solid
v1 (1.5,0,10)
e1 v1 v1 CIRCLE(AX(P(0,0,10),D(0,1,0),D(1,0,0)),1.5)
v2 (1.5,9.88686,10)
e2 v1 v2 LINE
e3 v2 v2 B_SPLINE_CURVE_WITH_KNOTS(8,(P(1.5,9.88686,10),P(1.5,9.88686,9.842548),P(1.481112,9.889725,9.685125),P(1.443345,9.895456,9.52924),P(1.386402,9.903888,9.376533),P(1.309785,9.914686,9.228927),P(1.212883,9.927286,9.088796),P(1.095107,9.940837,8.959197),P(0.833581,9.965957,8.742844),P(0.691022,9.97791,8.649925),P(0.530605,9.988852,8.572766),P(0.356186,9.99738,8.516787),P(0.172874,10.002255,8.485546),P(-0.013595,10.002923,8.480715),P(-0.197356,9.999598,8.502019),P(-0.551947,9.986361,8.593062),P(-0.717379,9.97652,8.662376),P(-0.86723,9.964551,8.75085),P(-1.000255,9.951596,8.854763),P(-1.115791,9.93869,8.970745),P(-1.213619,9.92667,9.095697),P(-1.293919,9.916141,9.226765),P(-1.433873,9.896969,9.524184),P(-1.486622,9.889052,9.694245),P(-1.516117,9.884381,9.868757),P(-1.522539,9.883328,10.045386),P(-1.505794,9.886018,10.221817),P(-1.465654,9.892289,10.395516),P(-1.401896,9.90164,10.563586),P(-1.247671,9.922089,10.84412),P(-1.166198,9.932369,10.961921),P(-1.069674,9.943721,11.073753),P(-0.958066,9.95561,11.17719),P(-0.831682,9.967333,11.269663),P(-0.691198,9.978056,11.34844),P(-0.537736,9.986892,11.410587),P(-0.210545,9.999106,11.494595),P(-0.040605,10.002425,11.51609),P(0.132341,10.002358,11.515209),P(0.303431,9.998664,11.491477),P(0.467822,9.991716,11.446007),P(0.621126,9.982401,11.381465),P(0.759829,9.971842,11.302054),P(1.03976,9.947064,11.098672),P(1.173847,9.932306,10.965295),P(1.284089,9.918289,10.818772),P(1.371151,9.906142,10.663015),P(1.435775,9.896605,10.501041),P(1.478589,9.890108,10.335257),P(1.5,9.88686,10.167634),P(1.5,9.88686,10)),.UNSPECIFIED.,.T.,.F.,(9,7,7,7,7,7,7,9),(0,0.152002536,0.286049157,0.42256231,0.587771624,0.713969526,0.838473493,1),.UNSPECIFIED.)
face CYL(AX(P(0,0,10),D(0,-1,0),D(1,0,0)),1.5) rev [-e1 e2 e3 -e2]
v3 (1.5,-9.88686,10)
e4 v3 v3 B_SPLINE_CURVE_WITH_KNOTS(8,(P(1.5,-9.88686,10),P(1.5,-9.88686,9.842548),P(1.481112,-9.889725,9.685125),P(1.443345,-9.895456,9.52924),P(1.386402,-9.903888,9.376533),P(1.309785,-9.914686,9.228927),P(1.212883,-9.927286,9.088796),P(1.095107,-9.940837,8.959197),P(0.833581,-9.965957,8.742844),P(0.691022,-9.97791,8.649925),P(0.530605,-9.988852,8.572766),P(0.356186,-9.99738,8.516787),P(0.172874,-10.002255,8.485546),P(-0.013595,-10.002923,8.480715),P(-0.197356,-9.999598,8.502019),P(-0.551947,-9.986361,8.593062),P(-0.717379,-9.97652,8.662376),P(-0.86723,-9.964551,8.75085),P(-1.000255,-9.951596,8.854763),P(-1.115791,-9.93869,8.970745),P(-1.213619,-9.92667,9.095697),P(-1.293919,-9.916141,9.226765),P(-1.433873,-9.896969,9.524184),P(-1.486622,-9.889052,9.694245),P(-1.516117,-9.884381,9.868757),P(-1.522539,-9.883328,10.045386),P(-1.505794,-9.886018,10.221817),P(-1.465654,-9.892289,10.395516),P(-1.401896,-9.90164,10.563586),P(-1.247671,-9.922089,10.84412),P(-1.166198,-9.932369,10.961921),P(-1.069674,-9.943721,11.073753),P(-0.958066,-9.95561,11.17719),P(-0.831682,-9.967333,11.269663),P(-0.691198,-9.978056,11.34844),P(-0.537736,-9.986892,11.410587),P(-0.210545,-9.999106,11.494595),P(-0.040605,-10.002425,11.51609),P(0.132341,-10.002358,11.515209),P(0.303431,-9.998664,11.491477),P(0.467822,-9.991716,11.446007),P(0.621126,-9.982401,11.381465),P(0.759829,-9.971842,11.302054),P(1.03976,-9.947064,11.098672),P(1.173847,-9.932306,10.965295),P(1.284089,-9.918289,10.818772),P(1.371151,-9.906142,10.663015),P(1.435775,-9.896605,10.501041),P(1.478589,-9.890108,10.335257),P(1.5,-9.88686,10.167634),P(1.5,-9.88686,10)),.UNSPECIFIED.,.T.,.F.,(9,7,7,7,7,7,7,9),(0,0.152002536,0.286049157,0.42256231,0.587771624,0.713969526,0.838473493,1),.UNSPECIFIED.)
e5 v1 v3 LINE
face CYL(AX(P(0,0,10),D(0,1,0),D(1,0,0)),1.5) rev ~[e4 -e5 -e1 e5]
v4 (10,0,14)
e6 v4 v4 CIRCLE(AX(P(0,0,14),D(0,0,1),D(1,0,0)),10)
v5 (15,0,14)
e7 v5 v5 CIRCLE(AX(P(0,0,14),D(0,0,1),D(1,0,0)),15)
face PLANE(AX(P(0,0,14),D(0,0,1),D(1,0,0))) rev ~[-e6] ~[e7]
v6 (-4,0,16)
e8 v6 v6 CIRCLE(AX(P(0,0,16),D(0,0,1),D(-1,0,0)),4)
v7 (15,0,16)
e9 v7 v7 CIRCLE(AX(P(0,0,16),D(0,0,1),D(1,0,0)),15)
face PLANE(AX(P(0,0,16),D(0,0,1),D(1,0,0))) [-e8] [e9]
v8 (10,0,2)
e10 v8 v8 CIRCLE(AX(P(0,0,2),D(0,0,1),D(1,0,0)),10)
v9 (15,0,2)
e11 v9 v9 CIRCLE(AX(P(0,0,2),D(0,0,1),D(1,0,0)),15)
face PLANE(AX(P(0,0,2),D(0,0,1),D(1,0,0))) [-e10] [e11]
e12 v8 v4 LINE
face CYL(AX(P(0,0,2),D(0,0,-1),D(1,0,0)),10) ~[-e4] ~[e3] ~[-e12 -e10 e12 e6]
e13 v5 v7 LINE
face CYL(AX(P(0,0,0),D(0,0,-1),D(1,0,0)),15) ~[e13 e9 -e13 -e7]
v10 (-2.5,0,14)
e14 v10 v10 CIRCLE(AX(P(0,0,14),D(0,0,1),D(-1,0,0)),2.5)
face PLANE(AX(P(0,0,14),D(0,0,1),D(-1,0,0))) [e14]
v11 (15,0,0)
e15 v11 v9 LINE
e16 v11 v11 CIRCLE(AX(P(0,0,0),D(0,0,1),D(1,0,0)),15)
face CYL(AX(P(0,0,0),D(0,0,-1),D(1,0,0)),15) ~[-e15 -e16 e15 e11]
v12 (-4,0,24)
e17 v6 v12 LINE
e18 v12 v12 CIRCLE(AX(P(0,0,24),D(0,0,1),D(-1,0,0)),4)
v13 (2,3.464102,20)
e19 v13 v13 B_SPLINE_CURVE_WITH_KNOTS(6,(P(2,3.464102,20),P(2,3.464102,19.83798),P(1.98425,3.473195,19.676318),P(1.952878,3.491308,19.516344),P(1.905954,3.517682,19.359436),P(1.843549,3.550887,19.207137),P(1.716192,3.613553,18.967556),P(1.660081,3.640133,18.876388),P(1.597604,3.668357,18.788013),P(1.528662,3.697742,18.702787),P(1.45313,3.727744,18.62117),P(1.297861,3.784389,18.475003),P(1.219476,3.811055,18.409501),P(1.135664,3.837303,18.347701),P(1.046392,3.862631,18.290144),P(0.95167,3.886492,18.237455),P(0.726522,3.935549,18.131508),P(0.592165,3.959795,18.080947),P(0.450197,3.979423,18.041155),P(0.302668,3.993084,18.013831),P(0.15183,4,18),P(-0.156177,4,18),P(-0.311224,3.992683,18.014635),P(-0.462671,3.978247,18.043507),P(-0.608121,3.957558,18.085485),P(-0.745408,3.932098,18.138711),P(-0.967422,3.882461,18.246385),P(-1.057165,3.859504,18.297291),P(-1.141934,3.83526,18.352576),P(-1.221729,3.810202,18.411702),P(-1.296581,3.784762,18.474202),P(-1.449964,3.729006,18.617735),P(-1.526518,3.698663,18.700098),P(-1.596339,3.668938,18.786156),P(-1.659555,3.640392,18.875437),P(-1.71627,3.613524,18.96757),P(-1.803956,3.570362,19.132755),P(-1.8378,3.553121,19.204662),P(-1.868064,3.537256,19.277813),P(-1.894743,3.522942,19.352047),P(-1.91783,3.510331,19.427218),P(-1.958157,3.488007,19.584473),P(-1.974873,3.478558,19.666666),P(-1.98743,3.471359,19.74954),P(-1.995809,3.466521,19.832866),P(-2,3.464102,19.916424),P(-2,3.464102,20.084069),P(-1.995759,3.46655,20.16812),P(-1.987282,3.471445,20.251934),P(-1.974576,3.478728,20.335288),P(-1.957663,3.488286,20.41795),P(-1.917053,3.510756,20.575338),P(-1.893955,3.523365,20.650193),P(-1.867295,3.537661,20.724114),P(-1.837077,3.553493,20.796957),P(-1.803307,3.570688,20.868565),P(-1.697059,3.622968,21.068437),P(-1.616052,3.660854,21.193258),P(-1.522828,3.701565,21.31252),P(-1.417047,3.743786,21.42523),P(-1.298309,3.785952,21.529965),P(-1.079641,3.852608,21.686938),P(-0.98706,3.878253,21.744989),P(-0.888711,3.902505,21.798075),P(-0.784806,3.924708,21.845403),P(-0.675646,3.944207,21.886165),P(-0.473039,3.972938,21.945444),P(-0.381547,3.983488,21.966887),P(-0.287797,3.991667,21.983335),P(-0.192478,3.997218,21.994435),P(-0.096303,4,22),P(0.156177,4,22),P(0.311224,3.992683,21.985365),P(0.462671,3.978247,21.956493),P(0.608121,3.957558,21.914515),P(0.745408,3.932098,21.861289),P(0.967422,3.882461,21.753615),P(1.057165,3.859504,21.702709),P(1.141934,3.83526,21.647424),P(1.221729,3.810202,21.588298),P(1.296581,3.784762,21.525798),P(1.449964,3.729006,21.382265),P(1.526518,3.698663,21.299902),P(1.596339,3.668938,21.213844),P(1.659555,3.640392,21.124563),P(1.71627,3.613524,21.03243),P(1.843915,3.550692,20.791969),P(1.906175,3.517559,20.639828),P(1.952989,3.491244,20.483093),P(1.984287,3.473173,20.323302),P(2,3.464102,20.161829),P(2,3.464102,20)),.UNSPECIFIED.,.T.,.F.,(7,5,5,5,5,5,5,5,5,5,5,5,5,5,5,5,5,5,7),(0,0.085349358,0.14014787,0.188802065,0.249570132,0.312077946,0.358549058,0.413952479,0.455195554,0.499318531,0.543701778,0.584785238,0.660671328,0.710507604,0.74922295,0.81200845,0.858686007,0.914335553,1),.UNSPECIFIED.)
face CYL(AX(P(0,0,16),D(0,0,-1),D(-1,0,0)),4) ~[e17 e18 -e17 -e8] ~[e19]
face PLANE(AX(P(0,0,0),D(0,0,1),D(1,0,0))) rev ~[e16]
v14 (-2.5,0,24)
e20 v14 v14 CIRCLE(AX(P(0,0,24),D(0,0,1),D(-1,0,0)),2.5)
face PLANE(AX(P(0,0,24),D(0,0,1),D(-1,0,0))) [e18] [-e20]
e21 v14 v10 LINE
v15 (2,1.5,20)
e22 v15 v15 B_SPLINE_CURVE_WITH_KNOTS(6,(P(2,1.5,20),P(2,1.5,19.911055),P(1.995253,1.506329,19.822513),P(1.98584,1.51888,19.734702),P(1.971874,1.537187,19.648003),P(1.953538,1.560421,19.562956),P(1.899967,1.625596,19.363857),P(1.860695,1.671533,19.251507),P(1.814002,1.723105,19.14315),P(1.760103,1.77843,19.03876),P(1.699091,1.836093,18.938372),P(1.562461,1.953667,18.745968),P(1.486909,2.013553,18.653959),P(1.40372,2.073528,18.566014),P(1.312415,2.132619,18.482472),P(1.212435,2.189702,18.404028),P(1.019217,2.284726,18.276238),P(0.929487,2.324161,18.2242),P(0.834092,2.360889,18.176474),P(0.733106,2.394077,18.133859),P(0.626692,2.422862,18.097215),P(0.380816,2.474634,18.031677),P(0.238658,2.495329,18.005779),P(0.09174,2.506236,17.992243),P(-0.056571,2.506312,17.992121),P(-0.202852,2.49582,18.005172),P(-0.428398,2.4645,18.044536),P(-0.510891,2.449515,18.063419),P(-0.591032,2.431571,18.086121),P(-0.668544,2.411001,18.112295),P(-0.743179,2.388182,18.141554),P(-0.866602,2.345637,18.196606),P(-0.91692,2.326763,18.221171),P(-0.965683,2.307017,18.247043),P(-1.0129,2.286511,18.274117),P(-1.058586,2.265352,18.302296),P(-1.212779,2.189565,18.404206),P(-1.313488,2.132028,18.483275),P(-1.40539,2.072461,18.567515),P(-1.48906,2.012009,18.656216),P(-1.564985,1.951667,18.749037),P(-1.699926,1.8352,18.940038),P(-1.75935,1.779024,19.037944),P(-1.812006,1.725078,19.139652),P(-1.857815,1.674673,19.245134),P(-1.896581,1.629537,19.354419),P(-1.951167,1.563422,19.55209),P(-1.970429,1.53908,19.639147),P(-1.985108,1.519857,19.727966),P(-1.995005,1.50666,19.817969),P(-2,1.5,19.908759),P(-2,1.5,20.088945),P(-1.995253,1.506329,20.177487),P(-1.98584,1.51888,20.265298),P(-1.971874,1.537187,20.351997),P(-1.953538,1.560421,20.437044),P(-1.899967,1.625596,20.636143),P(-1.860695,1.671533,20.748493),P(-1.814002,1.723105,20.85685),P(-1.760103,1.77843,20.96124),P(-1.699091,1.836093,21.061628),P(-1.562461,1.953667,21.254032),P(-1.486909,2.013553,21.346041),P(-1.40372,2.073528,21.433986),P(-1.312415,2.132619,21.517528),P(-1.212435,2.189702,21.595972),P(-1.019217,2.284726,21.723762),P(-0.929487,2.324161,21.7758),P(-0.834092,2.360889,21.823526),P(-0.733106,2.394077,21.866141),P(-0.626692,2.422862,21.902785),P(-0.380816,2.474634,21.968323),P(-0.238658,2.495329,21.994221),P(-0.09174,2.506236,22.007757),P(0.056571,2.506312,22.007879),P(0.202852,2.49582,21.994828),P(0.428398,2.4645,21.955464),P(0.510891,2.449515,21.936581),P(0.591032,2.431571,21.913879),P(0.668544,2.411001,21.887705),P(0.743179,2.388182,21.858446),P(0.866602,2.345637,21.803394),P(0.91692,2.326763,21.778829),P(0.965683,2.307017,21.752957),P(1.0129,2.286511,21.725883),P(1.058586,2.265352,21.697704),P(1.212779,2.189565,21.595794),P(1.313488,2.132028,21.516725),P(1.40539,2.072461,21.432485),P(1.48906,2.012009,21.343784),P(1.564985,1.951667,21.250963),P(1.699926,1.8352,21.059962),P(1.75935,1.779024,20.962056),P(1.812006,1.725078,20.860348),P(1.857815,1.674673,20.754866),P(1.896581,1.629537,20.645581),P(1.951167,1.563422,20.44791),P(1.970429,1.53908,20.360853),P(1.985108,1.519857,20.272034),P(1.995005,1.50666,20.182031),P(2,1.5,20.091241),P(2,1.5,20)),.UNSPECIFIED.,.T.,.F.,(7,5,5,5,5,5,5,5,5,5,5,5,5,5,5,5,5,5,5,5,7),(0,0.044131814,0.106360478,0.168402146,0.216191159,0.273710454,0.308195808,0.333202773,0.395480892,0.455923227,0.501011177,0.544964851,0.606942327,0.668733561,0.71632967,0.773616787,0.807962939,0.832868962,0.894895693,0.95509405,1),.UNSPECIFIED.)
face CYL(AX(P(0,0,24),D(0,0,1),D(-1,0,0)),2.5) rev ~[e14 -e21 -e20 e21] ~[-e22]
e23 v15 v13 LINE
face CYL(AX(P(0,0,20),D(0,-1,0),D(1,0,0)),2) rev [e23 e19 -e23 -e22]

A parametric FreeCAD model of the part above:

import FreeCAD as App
import Part
import Sketcher
from FreeCAD import Vector

doc = App.newDocument("Part")
params = doc.addObject("Spreadsheet::Sheet", "Params")
for row, (alias, value) in enumerate([
    ("sketch1_diameter", "30 mm"),
    ("pad1_length", "16 mm"),
    ("sketch2_diameter", "20 mm"),
    ("sketch2_diameter2", "30 mm"),
    ("pocket1_length", "12 mm"),
    ("sketch3_diameter", "8 mm"),
    ("pad2_length", "8 mm"),
    ("sketch4_diameter", "4 mm"),
    ("pocket2_length", "5 mm"),
    ("sketch5_diameter", "3 mm"),
    ("pocket3_length", "40 mm"),
    ("sketch6_diameter", "5 mm"),
    ("pocket4_length", "10 mm"),
], start=1):
    params.set(f"A{row}", alias)
    params.set(f"B{row}", "=" + value)
    params.setAlias(f"B{row}", alias)

body = doc.addObject("PartDesign::Body", "Body")

# Sketch on XY plane
sketch1 = doc.addObject("Sketcher::SketchObject", "Sketch")
body.addObject(sketch1)
sketch1.AttachmentSupport = (doc.XY_Plane, [""])
sketch1.MapMode = "FlatFace"
sketch1.addGeometry(Part.Circle(Vector(0, 0, 0), Vector(0, 0, 1), 15), False)
sketch1.addConstraint(Sketcher.Constraint("Coincident", 0, 3, -1, 1))
sketch1.addConstraint(Sketcher.Constraint("Diameter", 0, 30.0))
sketch1.setExpression("Constraints[1]", "Params.sketch1_diameter")
pad1 = doc.addObject("PartDesign::Pad", "Pad")
body.addObject(pad1)
pad1.Profile = sketch1
pad1.setExpression("Length", "Params.pad1_length")

# Sketch on XY plane
sketch2 = doc.addObject("Sketcher::SketchObject", "Sketch001")
body.addObject(sketch2)
sketch2.AttachmentSupport = (doc.XY_Plane, [""])
sketch2.MapMode = "FlatFace"
sketch2.AttachmentOffset = App.Placement(Vector(0, 0, 2), App.Rotation())
sketch2.addGeometry(Part.Circle(Vector(0, 0, 0), Vector(0, 0, 1), 15), False)
sketch2.addGeometry(Part.Circle(Vector(0, 0, 0), Vector(0, 0, 1), 10), False)
sketch2.addConstraint(Sketcher.Constraint("Coincident", 0, 3, -1, 1))
sketch2.addConstraint(Sketcher.Constraint("Coincident", 1, 3, -1, 1))
sketch2.addConstraint(Sketcher.Constraint("Diameter", 1, 20.0))
sketch2.addConstraint(Sketcher.Constraint("Diameter", 0, 30.0))
sketch2.setExpression("Constraints[2]", "Params.sketch2_diameter")
sketch2.setExpression("Constraints[3]", "Params.sketch2_diameter2")
pocket1 = doc.addObject("PartDesign::Pocket", "Pocket")
body.addObject(pocket1)
pocket1.Profile = sketch2
pocket1.setExpression("Length", "Params.pocket1_length")
pocket1.Reversed = True

# Sketch on XY plane
sketch3 = doc.addObject("Sketcher::SketchObject", "Sketch002")
body.addObject(sketch3)
sketch3.AttachmentSupport = (doc.XY_Plane, [""])
sketch3.MapMode = "FlatFace"
sketch3.AttachmentOffset = App.Placement(Vector(0, 0, 16), App.Rotation())
sketch3.addGeometry(Part.Circle(Vector(0, 0, 0), Vector(0, 0, 1), 4), False)
sketch3.addConstraint(Sketcher.Constraint("Coincident", 0, 3, -1, 1))
sketch3.addConstraint(Sketcher.Constraint("Diameter", 0, 8.0))
sketch3.setExpression("Constraints[1]", "Params.sketch3_diameter")
pad2 = doc.addObject("PartDesign::Pad", "Pad001")
body.addObject(pad2)
pad2.Profile = sketch3
pad2.setExpression("Length", "Params.pad2_length")

# Sketch on XZ plane
sketch4 = doc.addObject("Sketcher::SketchObject", "Sketch003")
body.addObject(sketch4)
sketch4.AttachmentSupport = (doc.XZ_Plane, [""])
sketch4.MapMode = "FlatFace"
sketch4.addGeometry(Part.Circle(Vector(0, 20, 0), Vector(0, 0, 1), 2), False)
sketch4.addConstraint(Sketcher.Constraint("PointOnObject", 0, 3, -2))
sketch4.addConstraint(Sketcher.Constraint("Diameter", 0, 4.0))
sketch4.addConstraint(Sketcher.Constraint("DistanceY", -1, 1, 0, 3, 20.0))
sketch4.setExpression("Constraints[1]", "Params.sketch4_diameter")
pocket2 = doc.addObject("PartDesign::Pocket", "Pocket001")
body.addObject(pocket2)
pocket2.Profile = sketch4
pocket2.setExpression("Length", "Params.pocket2_length")

# Sketch on XZ plane
sketch5 = doc.addObject("Sketcher::SketchObject", "Sketch004")
body.addObject(sketch5)
sketch5.AttachmentSupport = (doc.XZ_Plane, [""])
sketch5.MapMode = "FlatFace"
sketch5.addGeometry(Part.Circle(Vector(0, 10, 0), Vector(0, 0, 1), 1.5), False)
sketch5.addConstraint(Sketcher.Constraint("PointOnObject", 0, 3, -2))
sketch5.addConstraint(Sketcher.Constraint("Diameter", 0, 3.0))
sketch5.addConstraint(Sketcher.Constraint("DistanceY", -1, 1, 0, 3, 10.0))
sketch5.setExpression("Constraints[1]", "Params.sketch5_diameter")
pocket3 = doc.addObject("PartDesign::Pocket", "Pocket002")
body.addObject(pocket3)
pocket3.Profile = sketch5
pocket3.setExpression("Length", "Params.pocket3_length")
pocket3.Midplane = True

# Sketch on XY plane
sketch6 = doc.addObject("Sketcher::SketchObject", "Sketch005")
body.addObject(sketch6)
sketch6.AttachmentSupport = (doc.XY_Plane, [""])
sketch6.MapMode = "FlatFace"
sketch6.AttachmentOffset = App.Placement(Vector(0, 0, 24), App.Rotation())
sketch6.addGeometry(Part.Circle(Vector(0, 0, 0), Vector(0, 0, 1), 2.5), False)
sketch6.addConstraint(Sketcher.Constraint("Coincident", 0, 3, -1, 1))
sketch6.addConstraint(Sketcher.Constraint("Diameter", 0, 5.0))
sketch6.setExpression("Constraints[1]", "Params.sketch6_diameter")
pocket4 = doc.addObject("PartDesign::Pocket", "Pocket003")
body.addObject(pocket4)
pocket4.Profile = sketch6
pocket4.setExpression("Length", "Params.pocket4_length")

doc.recompute()
